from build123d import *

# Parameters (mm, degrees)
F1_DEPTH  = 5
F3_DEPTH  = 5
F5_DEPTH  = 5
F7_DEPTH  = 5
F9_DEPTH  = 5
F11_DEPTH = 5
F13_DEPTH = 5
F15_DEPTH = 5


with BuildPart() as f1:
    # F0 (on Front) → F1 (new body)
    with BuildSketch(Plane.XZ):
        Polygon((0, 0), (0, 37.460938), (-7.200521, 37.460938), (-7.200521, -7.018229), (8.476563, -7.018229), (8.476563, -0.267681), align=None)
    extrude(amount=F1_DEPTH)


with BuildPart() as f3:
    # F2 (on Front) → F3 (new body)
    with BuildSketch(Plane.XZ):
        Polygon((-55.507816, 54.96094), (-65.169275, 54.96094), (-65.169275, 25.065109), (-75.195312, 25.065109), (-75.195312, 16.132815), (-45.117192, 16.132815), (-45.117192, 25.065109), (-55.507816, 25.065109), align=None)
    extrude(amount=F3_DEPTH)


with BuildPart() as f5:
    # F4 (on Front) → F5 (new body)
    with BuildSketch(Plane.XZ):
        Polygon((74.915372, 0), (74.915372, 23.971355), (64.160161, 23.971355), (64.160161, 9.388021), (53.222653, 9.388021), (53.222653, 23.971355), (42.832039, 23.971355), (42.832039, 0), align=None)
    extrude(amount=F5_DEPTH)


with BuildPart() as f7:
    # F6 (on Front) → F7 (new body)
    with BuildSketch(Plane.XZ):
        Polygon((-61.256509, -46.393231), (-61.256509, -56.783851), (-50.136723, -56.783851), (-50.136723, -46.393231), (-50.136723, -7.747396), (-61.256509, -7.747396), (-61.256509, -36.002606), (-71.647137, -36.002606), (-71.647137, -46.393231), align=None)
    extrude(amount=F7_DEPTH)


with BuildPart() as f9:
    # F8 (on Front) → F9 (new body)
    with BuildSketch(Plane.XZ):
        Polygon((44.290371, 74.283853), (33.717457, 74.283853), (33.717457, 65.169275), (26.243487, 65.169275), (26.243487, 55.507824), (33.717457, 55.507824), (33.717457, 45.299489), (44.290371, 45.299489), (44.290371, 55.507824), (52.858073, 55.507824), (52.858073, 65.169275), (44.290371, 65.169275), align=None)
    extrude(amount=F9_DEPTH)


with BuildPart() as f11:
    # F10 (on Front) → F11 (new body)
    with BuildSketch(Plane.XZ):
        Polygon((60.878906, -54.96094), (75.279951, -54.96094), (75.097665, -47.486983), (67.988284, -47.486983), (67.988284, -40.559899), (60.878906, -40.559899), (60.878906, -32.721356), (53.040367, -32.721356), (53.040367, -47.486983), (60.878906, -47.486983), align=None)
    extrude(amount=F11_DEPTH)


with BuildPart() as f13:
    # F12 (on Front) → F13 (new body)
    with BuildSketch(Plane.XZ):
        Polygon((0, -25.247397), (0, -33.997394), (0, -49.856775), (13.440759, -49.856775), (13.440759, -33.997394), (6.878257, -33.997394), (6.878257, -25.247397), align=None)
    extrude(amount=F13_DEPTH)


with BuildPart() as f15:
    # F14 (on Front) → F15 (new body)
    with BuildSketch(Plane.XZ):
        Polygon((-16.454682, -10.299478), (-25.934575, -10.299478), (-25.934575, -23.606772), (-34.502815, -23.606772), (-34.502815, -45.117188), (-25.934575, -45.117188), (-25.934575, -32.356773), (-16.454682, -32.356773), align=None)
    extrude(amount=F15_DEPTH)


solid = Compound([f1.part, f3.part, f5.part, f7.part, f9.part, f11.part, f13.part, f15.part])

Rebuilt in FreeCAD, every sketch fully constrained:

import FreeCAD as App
import Part
import Sketcher

doc = App.newDocument("Part")
params = doc.addObject("Spreadsheet::Sheet", "Params")
for row, (alias, value) in enumerate([
    ("pad1_length", "5 mm"),
    ("pad2_length", "5 mm"),
    ("pad3_length", "5 mm"),
    ("pad4_length", "5 mm"),
    ("pad5_length", "5 mm"),
    ("pad6_length", "5 mm"),
    ("pad7_length", "5 mm"),
    ("pad8_length", "5 mm"),
], start=1):
    params.set(f"A{row}", alias)
    params.set(f"B{row}", "=" + value)
    params.setAlias(f"B{row}", alias)

body = doc.addObject("PartDesign::Body", "Body")

sketch1 = doc.addObject("Sketcher::SketchObject", "Sketch")
body.addObject(sketch1)
sketch1.AttachmentSupport = (doc.XZ_Plane, [""])
sketch1.MapMode = "FlatFace"
sketch1.addGeometry([
    Part.LineSegment(App.Vector(0, 0, 0), App.Vector(0, 37.460938, 0)),
    Part.LineSegment(App.Vector(0, 37.460938, 0), App.Vector(-7.200521, 37.460938, 0)),
    Part.LineSegment(App.Vector(-7.200521, 37.460938, 0), App.Vector(-7.200521, -7.018229, 0)),
    Part.LineSegment(App.Vector(-7.200521, -7.018229, 0), App.Vector(8.476563, -7.018229, 0)),
    Part.LineSegment(App.Vector(8.476563, -7.018229, 0), App.Vector(8.476563, -0.267681, 0)),
    Part.LineSegment(App.Vector(8.476563, -0.267681, 0), App.Vector(0, 0, 0)),
], False)
sketch1.addConstraint([
    Sketcher.Constraint("Coincident", 0, 2, 1, 1),
    Sketcher.Constraint("Coincident", 1, 2, 2, 1),
    Sketcher.Constraint("Coincident", 2, 2, 3, 1),
    Sketcher.Constraint("Coincident", 3, 2, 4, 1),
    Sketcher.Constraint("Coincident", 4, 2, 5, 1),
    Sketcher.Constraint("Coincident", 5, 2, 0, 1),
    Sketcher.Constraint("Vertical", 0),
    Sketcher.Constraint("Horizontal", 1),
    Sketcher.Constraint("Vertical", 2),
    Sketcher.Constraint("Horizontal", 3),
    Sketcher.Constraint("Vertical", 4),
    Sketcher.Constraint("Coincident", 5, 2, -1, 1),
    Sketcher.Constraint("DistanceX", 1, 2, 1, 1, 7.200521),
    Sketcher.Constraint("DistanceY", 4, 1, 4, 2, 6.750548),
    Sketcher.Constraint("Distance", 5, 8.480788),
    Sketcher.Constraint("DistanceX", 3, 1, 3, 2, 15.677084),
    Sketcher.Constraint("DistanceY", 0, 1, 0, 2, 37.460938),
])
pad1 = doc.addObject("PartDesign::Pad", "Pad")
body.addObject(pad1)
pad1.Profile = sketch1
pad1.setExpression("Length", "Params.pad1_length")
body2 = doc.addObject("PartDesign::Body", "Body001")

sketch2 = doc.addObject("Sketcher::SketchObject", "Sketch001")
body2.addObject(sketch2)
sketch2.AttachmentSupport = (doc.getObject("XZ_Plane001"), [""])
sketch2.MapMode = "FlatFace"
sketch2.addGeometry([
    Part.LineSegment(App.Vector(-56, 55, 0), App.Vector(-65, 55, 0)),
    Part.LineSegment(App.Vector(-65, 55, 0), App.Vector(-65, 25, 0)),
    Part.LineSegment(App.Vector(-65, 25, 0), App.Vector(-75, 25, 0)),
    Part.LineSegment(App.Vector(-75, 25, 0), App.Vector(-75, 16, 0)),
    Part.LineSegment(App.Vector(-75, 16, 0), App.Vector(-45, 16, 0)),
    Part.LineSegment(App.Vector(-45, 16, 0), App.Vector(-45, 25, 0)),
    Part.LineSegment(App.Vector(-45, 25, 0), App.Vector(-56, 25, 0)),
    Part.LineSegment(App.Vector(-56, 25, 0), App.Vector(-56, 55, 0)),
], False)
sketch2.addConstraint([
    Sketcher.Constraint("Coincident", 0, 2, 1, 1),
    Sketcher.Constraint("Coincident", 1, 2, 2, 1),
    Sketcher.Constraint("Coincident", 2, 2, 3, 1),
    Sketcher.Constraint("Coincident", 3, 2, 4, 1),
    Sketcher.Constraint("Coincident", 4, 2, 5, 1),
    Sketcher.Constraint("Coincident", 5, 2, 6, 1),
    Sketcher.Constraint("Coincident", 6, 2, 7, 1),
    Sketcher.Constraint("Coincident", 7, 2, 0, 1),
    Sketcher.Constraint("Horizontal", 0),
    Sketcher.Constraint("Vertical", 1),
    Sketcher.Constraint("Horizontal", 2),
    Sketcher.Constraint("Vertical", 3),
    Sketcher.Constraint("Horizontal", 4),
    Sketcher.Constraint("Vertical", 5),
    Sketcher.Constraint("Horizontal", 6),
    Sketcher.Constraint("Vertical", 7),
    Sketcher.Constraint("Horizontal", 2, 2, 5, 2),
    Sketcher.Constraint("DistanceX", 0, 2, 0, 1, 9.661459),
    Sketcher.Constraint("DistanceX", 4, 1, 4, 2, 30.07812),
    Sketcher.Constraint("DistanceY", 1, 2, 1, 1, 29.895831),
    Sketcher.Constraint("DistanceX", 2, 2, 2, 1, 10.026037),
    Sketcher.Constraint("DistanceY", 3, 2, 3, 1, 8.932294),
    Sketcher.Constraint("DistanceY", -1, 1, 0, 2, 54.96094),
    Sketcher.Constraint("DistanceX", 2, 2, -1, 1, 75.195312),
])
pad2 = doc.addObject("PartDesign::Pad", "Pad001")
body2.addObject(pad2)
pad2.Profile = sketch2
pad2.setExpression("Length", "Params.pad2_length")
body3 = doc.addObject("PartDesign::Body", "Body002")

sketch3 = doc.addObject("Sketcher::SketchObject", "Sketch002")
body3.addObject(sketch3)
sketch3.AttachmentSupport = (doc.getObject("XZ_Plane002"), [""])
sketch3.MapMode = "FlatFace"
sketch3.addGeometry([
    Part.LineSegment(App.Vector(75, 0, 0), App.Vector(75, 24, 0)),
    Part.LineSegment(App.Vector(75, 24, 0), App.Vector(64, 24, 0)),
    Part.LineSegment(App.Vector(64, 24, 0), App.Vector(64, 9, 0)),
    Part.LineSegment(App.Vector(64, 9, 0), App.Vector(53, 9, 0)),
    Part.LineSegment(App.Vector(53, 9, 0), App.Vector(53, 24, 0)),
    Part.LineSegment(App.Vector(53, 24, 0), App.Vector(43, 24, 0)),
    Part.LineSegment(App.Vector(43, 24, 0), App.Vector(43, 0, 0)),
    Part.LineSegment(App.Vector(43, 0, 0), App.Vector(75, 0, 0)),
], False)
sketch3.addConstraint([
    Sketcher.Constraint("Coincident", 0, 2, 1, 1),
    Sketcher.Constraint("Coincident", 1, 2, 2, 1),
    Sketcher.Constraint("Coincident", 2, 2, 3, 1),
    Sketcher.Constraint("Coincident", 3, 2, 4, 1),
    Sketcher.Constraint("Coincident", 4, 2, 5, 1),
    Sketcher.Constraint("Coincident", 5, 2, 6, 1),
    Sketcher.Constraint("Coincident", 6, 2, 7, 1),
    Sketcher.Constraint("Coincident", 7, 2, 0, 1),
    Sketcher.Constraint("Vertical", 0),
    Sketcher.Constraint("Horizontal", 1),
    Sketcher.Constraint("Vertical", 2),
    Sketcher.Constraint("Horizontal", 3),
    Sketcher.Constraint("Vertical", 4),
    Sketcher.Constraint("Horizontal", 5),
    Sketcher.Constraint("Vertical", 6),
    Sketcher.Constraint("Horizontal", 7),
    Sketcher.Constraint("PointOnObject", 6, 2, -1),
    Sketcher.Constraint("Horizontal", 1, 2, 4, 2),
    Sketcher.Constraint("DistanceX", 1, 2, 1, 1, 10.755211),
    Sketcher.Constraint("DistanceX", 3, 2, 3, 1, 10.937508),
    Sketcher.Constraint("DistanceX", 5, 2, 5, 1, 10.390614),
    Sketcher.Constraint("DistanceY", 0, 1, 0, 2, 23.971355),
    Sketcher.Constraint("DistanceY", 2, 2, 2, 1, 14.583334),
    Sketcher.Constraint("DistanceX", -1, 1, 1, 2, 64.160161),
])
pad3 = doc.addObject("PartDesign::Pad", "Pad002")
body3.addObject(pad3)
pad3.Profile = sketch3
pad3.setExpression("Length", "Params.pad3_length")
body4 = doc.addObject("PartDesign::Body", "Body003")

sketch4 = doc.addObject("Sketcher::SketchObject", "Sketch003")
body4.addObject(sketch4)
sketch4.AttachmentSupport = (doc.getObject("XZ_Plane003"), [""])
sketch4.MapMode = "FlatFace"
sketch4.addGeometry([
    Part.LineSegment(App.Vector(-61, -46, 0), App.Vector(-61, -57, 0)),
    Part.LineSegment(App.Vector(-61, -57, 0), App.Vector(-50, -57, 0)),
    Part.LineSegment(App.Vector(-50, -57, 0), App.Vector(-50, -8, 0)),
    Part.LineSegment(App.Vector(-50, -8, 0), App.Vector(-61, -8, 0)),
    Part.LineSegment(App.Vector(-61, -8, 0), App.Vector(-61, -36, 0)),
    Part.LineSegment(App.Vector(-61, -36, 0), App.Vector(-72, -36, 0)),
    Part.LineSegment(App.Vector(-72, -36, 0), App.Vector(-72, -46, 0)),
    Part.LineSegment(App.Vector(-72, -46, 0), App.Vector(-61, -46, 0)),
], False)
sketch4.addConstraint([
    Sketcher.Constraint("Coincident", 0, 2, 1, 1),
    Sketcher.Constraint("Coincident", 1, 2, 2, 1),
    Sketcher.Constraint("Coincident", 2, 2, 3, 1),
    Sketcher.Constraint("Coincident", 3, 2, 4, 1),
    Sketcher.Constraint("Coincident", 4, 2, 5, 1),
    Sketcher.Constraint("Coincident", 5, 2, 6, 1),
    Sketcher.Constraint("Coincident", 6, 2, 7, 1),
    Sketcher.Constraint("Coincident", 7, 2, 0, 1),
    Sketcher.Constraint("Vertical", 0),
    Sketcher.Constraint("Horizontal", 1),
    Sketcher.Constraint("Vertical", 2),
    Sketcher.Constraint("Horizontal", 3),
    Sketcher.Constraint("Vertical", 4),
    Sketcher.Constraint("Horizontal", 5),
    Sketcher.Constraint("Vertical", 6),
    Sketcher.Constraint("Horizontal", 7),
    Sketcher.Constraint("Vertical", 0, 2, 3, 2),
    Sketcher.Constraint("DistanceY", 0, 2, 0, 1, 10.39062),
    Sketcher.Constraint("DistanceY", 4, 2, 4, 1, 28.25521),
    Sketcher.Constraint("DistanceX", 1, 1, 1, 2, 11.119786),
    Sketcher.Constraint("DistanceX", 5, 2, 5, 1, 10.390628),
    Sketcher.Constraint("DistanceY", 2, 1, 2, 2, 49.036455),
    Sketcher.Constraint("DistanceX", 0, 2, -1, 1, 61.256509),
    Sketcher.Constraint("DistanceY", 0, 2, -1, 1, 56.783851),
])
pad4 = doc.addObject("PartDesign::Pad", "Pad003")
body4.addObject(pad4)
pad4.Profile = sketch4
pad4.setExpression("Length", "Params.pad4_length")
body5 = doc.addObject("PartDesign::Body", "Body004")

sketch5 = doc.addObject("Sketcher::SketchObject", "Sketch004")
body5.addObject(sketch5)
sketch5.AttachmentSupport = (doc.getObject("XZ_Plane004"), [""])
sketch5.MapMode = "FlatFace"
sketch5.addGeometry([
    Part.LineSegment(App.Vector(44, 74, 0), App.Vector(34, 74, 0)),
    Part.LineSegment(App.Vector(34, 74, 0), App.Vector(34, 65, 0)),
    Part.LineSegment(App.Vector(34, 65, 0), App.Vector(26, 65, 0)),
    Part.LineSegment(App.Vector(26, 65, 0), App.Vector(26, 56, 0)),
    Part.LineSegment(App.Vector(26, 56, 0), App.Vector(34, 56, 0)),
    Part.LineSegment(App.Vector(34, 56, 0), App.Vector(34, 45, 0)),
    Part.LineSegment(App.Vector(34, 45, 0), App.Vector(44, 45, 0)),
    Part.LineSegment(App.Vector(44, 45, 0), App.Vector(44, 56, 0)),
    Part.LineSegment(App.Vector(44, 56, 0), App.Vector(53, 56, 0)),
    Part.LineSegment(App.Vector(53, 56, 0), App.Vector(53, 65, 0)),
    Part.LineSegment(App.Vector(53, 65, 0), App.Vector(44, 65, 0)),
    Part.LineSegment(App.Vector(44, 65, 0), App.Vector(44, 74, 0)),
], False)
sketch5.addConstraint([
    Sketcher.Constraint("Coincident", 0, 2, 1, 1),
    Sketcher.Constraint("Coincident", 1, 2, 2, 1),
    Sketcher.Constraint("Coincident", 2, 2, 3, 1),
    Sketcher.Constraint("Coincident", 3, 2, 4, 1),
    Sketcher.Constraint("Coincident", 4, 2, 5, 1),
    Sketcher.Constraint("Coincident", 5, 2, 6, 1),
    Sketcher.Constraint("Coincident", 6, 2, 7, 1),
    Sketcher.Constraint("Coincident", 7, 2, 8, 1),
    Sketcher.Constraint("Coincident", 8, 2, 9, 1),
    Sketcher.Constraint("Coincident", 9, 2, 10, 1),
    Sketcher.Constraint("Coincident", 10, 2, 11, 1),
    Sketcher.Constraint("Coincident", 11, 2, 0, 1),
    Sketcher.Constraint("Horizontal", 0),
    Sketcher.Constraint("Vertical", 1),
    Sketcher.Constraint("Horizontal", 2),
    Sketcher.Constraint("Vertical", 3),
    Sketcher.Constraint("Horizontal", 4),
    Sketcher.Constraint("Vertical", 5),
    Sketcher.Constraint("Horizontal", 6),
    Sketcher.Constraint("Vertical", 7),
    Sketcher.Constraint("Horizontal", 8),
    Sketcher.Constraint("Vertical", 9),
    Sketcher.Constraint("Horizontal", 10),
    Sketcher.Constraint("Vertical", 11),
    Sketcher.Constraint("Horizontal", 4, 2, 7, 2),
    Sketcher.Constraint("Horizontal", 2, 2, 9, 2),
    Sketcher.Constraint("Vertical", 1, 2, 4, 2),
    Sketcher.Constraint("Vertical", 7, 2, 10, 2),
    Sketcher.Constraint("DistanceX", 8, 1, 8, 2, 8.567702),
    Sketcher.Constraint("DistanceX", 2, 2, 2, 1, 7.47397),
    Sketcher.Constraint("DistanceY", 3, 2, 3, 1, 9.661451),
    Sketcher.Constraint("DistanceX", 0, 2, 0, 1, 10.572914),
    Sketcher.Constraint("DistanceY", 1, 2, 1, 1, 9.114578),
    Sketcher.Constraint("DistanceY", 5, 2, 5, 1, 10.208335),
    Sketcher.Constraint("DistanceY", -1, 1, 5, 2, 45.299489),
    Sketcher.Constraint("DistanceX", -1, 1, 6, 2, 44.290371),
])
pad5 = doc.addObject("PartDesign::Pad", "Pad004")
body5.addObject(pad5)
pad5.Profile = sketch5
pad5.setExpression("Length", "Params.pad5_length")
body6 = doc.addObject("PartDesign::Body", "Body005")

sketch6 = doc.addObject("Sketcher::SketchObject", "Sketch005")
body6.addObject(sketch6)
sketch6.AttachmentSupport = (doc.getObject("XZ_Plane005"), [""])
sketch6.MapMode = "FlatFace"
sketch6.addGeometry([
    Part.LineSegment(App.Vector(61, -55, 0), App.Vector(75, -55, 0)),
    Part.LineSegment(App.Vector(75, -55, 0), App.Vector(75, -47, 0)),
    Part.LineSegment(App.Vector(75, -47, 0), App.Vector(68, -47, 0)),
    Part.LineSegment(App.Vector(68, -47, 0), App.Vector(68, -41, 0)),
    Part.LineSegment(App.Vector(68, -41, 0), App.Vector(61, -41, 0)),
    Part.LineSegment(App.Vector(61, -41, 0), App.Vector(61, -33, 0)),
    Part.LineSegment(App.Vector(61, -33, 0), App.Vector(53, -33, 0)),
    Part.LineSegment(App.Vector(53, -33, 0), App.Vector(53, -47, 0)),
    Part.LineSegment(App.Vector(53, -47, 0), App.Vector(61, -47, 0)),
    Part.LineSegment(App.Vector(61, -47, 0), App.Vector(61, -55, 0)),
], False)
sketch6.addConstraint([
    Sketcher.Constraint("Coincident", 0, 2, 1, 1),
    Sketcher.Constraint("Coincident", 1, 2, 2, 1),
    Sketcher.Constraint("Coincident", 2, 2, 3, 1),
    Sketcher.Constraint("Coincident", 3, 2, 4, 1),
    Sketcher.Constraint("Coincident", 4, 2, 5, 1),
    Sketcher.Constraint("Coincident", 5, 2, 6, 1),
    Sketcher.Constraint("Coincident", 6, 2, 7, 1),
    Sketcher.Constraint("Coincident", 7, 2, 8, 1),
    Sketcher.Constraint("Coincident", 8, 2, 9, 1),
    Sketcher.Constraint("Coincident", 9, 2, 0, 1),
    Sketcher.Constraint("Horizontal", 0),
    Sketcher.Constraint("Horizontal", 2),
    Sketcher.Constraint("Vertical", 3),
    Sketcher.Constraint("Horizontal", 4),
    Sketcher.Constraint("Vertical", 5),
    Sketcher.Constraint("Horizontal", 6),
    Sketcher.Constraint("Vertical", 7),
    Sketcher.Constraint("Horizontal", 8),
    Sketcher.Constraint("Vertical", 9),
    Sketcher.Constraint("Horizontal", 2, 2, 7, 2),
    Sketcher.Constraint("Vertical", 5, 2, 8, 2),
    Sketcher.Constraint("DistanceX", 2, 2, 2, 1, 7.109381),
    Sketcher.Constraint("DistanceX", 6, 2, 6, 1, 7.838539),
    Sketcher.Constraint("DistanceY", 3, 2, -1, 1, 40.559899),
    Sketcher.Constraint("DistanceX", 6, 2, 1, 2, 22.057298),
    Sketcher.Constraint("Distance", 1, 7.47618),
    Sketcher.Constraint("DistanceX", 0, 1, 0, 2, 14.401045),
    Sketcher.Constraint("DistanceY", 3, 1, 3, 2, 6.927084),
    Sketcher.Constraint("DistanceY", 5, 1, 5, 2, 7.838543),
    Sketcher.Constraint("DistanceX", -1, 1, 0, 2, 75.279951),
])
pad6 = doc.addObject("PartDesign::Pad", "Pad005")
body6.addObject(pad6)
pad6.Profile = sketch6
pad6.setExpression("Length", "Params.pad6_length")
body7 = doc.addObject("PartDesign::Body", "Body006")

sketch7 = doc.addObject("Sketcher::SketchObject", "Sketch006")
body7.addObject(sketch7)
sketch7.AttachmentSupport = (doc.getObject("XZ_Plane006"), [""])
sketch7.MapMode = "FlatFace"
sketch7.addGeometry([
    Part.LineSegment(App.Vector(0, -25, 0), App.Vector(0, -50, 0)),
    Part.LineSegment(App.Vector(0, -50, 0), App.Vector(13, -50, 0)),
    Part.LineSegment(App.Vector(13, -50, 0), App.Vector(13, -34, 0)),
    Part.LineSegment(App.Vector(13, -34, 0), App.Vector(7, -34, 0)),
    Part.LineSegment(App.Vector(7, -34, 0), App.Vector(7, -25, 0)),
    Part.LineSegment(App.Vector(7, -25, 0), App.Vector(0, -25, 0)),
], False)
sketch7.addConstraint([
    Sketcher.Constraint("Coincident", 0, 2, 1, 1),
    Sketcher.Constraint("Coincident", 1, 2, 2, 1),
    Sketcher.Constraint("Coincident", 2, 2, 3, 1),
    Sketcher.Constraint("Coincident", 3, 2, 4, 1),
    Sketcher.Constraint("Coincident", 4, 2, 5, 1),
    Sketcher.Constraint("Coincident", 5, 2, 0, 1),
    Sketcher.Constraint("Vertical", 0),
    Sketcher.Constraint("Horizontal", 1),
    Sketcher.Constraint("Vertical", 2),
    Sketcher.Constraint("Horizontal", 3),
    Sketcher.Constraint("Vertical", 4),
    Sketcher.Constraint("Horizontal", 5),
    Sketcher.Constraint("PointOnObject", 0, 2, -2),
    Sketcher.Constraint("DistanceX", 1, 1, 1, 2, 13.440759),
    Sketcher.Constraint("DistanceY", 2, 1, 2, 2, 15.859381),
    Sketcher.Constraint("DistanceX", 3, 2, 3, 1, 6.562502),
    Sketcher.Constraint("DistanceY", 0, 2, 0, 1, 24.609378),
    Sketcher.Constraint("DistanceY", 0, 2, -1, 1, 49.856775),
])
pad7 = doc.addObject("PartDesign::Pad", "Pad006")
body7.addObject(pad7)
pad7.Profile = sketch7
pad7.setExpression("Length", "Params.pad7_length")
body8 = doc.addObject("PartDesign::Body", "Body007")

sketch8 = doc.addObject("Sketcher::SketchObject", "Sketch007")
body8.addObject(sketch8)
sketch8.AttachmentSupport = (doc.getObject("XZ_Plane007"), [""])
sketch8.MapMode = "FlatFace"
sketch8.addGeometry([
    Part.LineSegment(App.Vector(-16, -10, 0), App.Vector(-26, -10, 0)),
    Part.LineSegment(App.Vector(-26, -10, 0), App.Vector(-26, -24, 0)),
    Part.LineSegment(App.Vector(-26, -24, 0), App.Vector(-35, -24, 0)),
    Part.LineSegment(App.Vector(-35, -24, 0), App.Vector(-35, -45, 0)),
    Part.LineSegment(App.Vector(-35, -45, 0), App.Vector(-26, -45, 0)),
    Part.LineSegment(App.Vector(-26, -45, 0), App.Vector(-26, -32, 0)),
    Part.LineSegment(App.Vector(-26, -32, 0), App.Vector(-16, -32, 0)),
    Part.LineSegment(App.Vector(-16, -32, 0), App.Vector(-16, -10, 0)),
], False)
sketch8.addConstraint([
    Sketcher.Constraint("Coincident", 0, 2, 1, 1),
    Sketcher.Constraint("Coincident", 1, 2, 2, 1),
    Sketcher.Constraint("Coincident", 2, 2, 3, 1),
    Sketcher.Constraint("Coincident", 3, 2, 4, 1),
    Sketcher.Constraint("Coincident", 4, 2, 5, 1),
    Sketcher.Constraint("Coincident", 5, 2, 6, 1),
    Sketcher.Constraint("Coincident", 6, 2, 7, 1),
    Sketcher.Constraint("Coincident", 7, 2, 0, 1),
    Sketcher.Constraint("Horizontal", 0),
    Sketcher.Constraint("Vertical", 1),
    Sketcher.Constraint("Horizontal", 2),
    Sketcher.Constraint("Vertical", 3),
    Sketcher.Constraint("Horizontal", 4),
    Sketcher.Constraint("Vertical", 5),
    Sketcher.Constraint("Horizontal", 6),
    Sketcher.Constraint("Vertical", 7),
    Sketcher.Constraint("Vertical", 1, 2, 4, 2),
    Sketcher.Constraint("DistanceY", 5, 2, 1, 2, 8.750001),
    Sketcher.Constraint("DistanceX", 2, 2, 2, 1, 8.56824),
    Sketcher.Constraint("DistanceX", 0, 2, 0, 1, 9.479893),
    Sketcher.Constraint("DistanceY", 1, 2, 1, 1, 13.307294),
    Sketcher.Constraint("DistanceY", 3, 2, 3, 1, 21.510416),
    Sketcher.Constraint("DistanceY", 1, 2, -1, 1, 23.606772),
    Sketcher.Constraint("DistanceX", 6, 2, -1, 1, 16.454682),
])
pad8 = doc.addObject("PartDesign::Pad", "Pad007")
body8.addObject(pad8)
pad8.Profile = sketch8
pad8.setExpression("Length", "Params.pad8_length")

doc.recompute()
